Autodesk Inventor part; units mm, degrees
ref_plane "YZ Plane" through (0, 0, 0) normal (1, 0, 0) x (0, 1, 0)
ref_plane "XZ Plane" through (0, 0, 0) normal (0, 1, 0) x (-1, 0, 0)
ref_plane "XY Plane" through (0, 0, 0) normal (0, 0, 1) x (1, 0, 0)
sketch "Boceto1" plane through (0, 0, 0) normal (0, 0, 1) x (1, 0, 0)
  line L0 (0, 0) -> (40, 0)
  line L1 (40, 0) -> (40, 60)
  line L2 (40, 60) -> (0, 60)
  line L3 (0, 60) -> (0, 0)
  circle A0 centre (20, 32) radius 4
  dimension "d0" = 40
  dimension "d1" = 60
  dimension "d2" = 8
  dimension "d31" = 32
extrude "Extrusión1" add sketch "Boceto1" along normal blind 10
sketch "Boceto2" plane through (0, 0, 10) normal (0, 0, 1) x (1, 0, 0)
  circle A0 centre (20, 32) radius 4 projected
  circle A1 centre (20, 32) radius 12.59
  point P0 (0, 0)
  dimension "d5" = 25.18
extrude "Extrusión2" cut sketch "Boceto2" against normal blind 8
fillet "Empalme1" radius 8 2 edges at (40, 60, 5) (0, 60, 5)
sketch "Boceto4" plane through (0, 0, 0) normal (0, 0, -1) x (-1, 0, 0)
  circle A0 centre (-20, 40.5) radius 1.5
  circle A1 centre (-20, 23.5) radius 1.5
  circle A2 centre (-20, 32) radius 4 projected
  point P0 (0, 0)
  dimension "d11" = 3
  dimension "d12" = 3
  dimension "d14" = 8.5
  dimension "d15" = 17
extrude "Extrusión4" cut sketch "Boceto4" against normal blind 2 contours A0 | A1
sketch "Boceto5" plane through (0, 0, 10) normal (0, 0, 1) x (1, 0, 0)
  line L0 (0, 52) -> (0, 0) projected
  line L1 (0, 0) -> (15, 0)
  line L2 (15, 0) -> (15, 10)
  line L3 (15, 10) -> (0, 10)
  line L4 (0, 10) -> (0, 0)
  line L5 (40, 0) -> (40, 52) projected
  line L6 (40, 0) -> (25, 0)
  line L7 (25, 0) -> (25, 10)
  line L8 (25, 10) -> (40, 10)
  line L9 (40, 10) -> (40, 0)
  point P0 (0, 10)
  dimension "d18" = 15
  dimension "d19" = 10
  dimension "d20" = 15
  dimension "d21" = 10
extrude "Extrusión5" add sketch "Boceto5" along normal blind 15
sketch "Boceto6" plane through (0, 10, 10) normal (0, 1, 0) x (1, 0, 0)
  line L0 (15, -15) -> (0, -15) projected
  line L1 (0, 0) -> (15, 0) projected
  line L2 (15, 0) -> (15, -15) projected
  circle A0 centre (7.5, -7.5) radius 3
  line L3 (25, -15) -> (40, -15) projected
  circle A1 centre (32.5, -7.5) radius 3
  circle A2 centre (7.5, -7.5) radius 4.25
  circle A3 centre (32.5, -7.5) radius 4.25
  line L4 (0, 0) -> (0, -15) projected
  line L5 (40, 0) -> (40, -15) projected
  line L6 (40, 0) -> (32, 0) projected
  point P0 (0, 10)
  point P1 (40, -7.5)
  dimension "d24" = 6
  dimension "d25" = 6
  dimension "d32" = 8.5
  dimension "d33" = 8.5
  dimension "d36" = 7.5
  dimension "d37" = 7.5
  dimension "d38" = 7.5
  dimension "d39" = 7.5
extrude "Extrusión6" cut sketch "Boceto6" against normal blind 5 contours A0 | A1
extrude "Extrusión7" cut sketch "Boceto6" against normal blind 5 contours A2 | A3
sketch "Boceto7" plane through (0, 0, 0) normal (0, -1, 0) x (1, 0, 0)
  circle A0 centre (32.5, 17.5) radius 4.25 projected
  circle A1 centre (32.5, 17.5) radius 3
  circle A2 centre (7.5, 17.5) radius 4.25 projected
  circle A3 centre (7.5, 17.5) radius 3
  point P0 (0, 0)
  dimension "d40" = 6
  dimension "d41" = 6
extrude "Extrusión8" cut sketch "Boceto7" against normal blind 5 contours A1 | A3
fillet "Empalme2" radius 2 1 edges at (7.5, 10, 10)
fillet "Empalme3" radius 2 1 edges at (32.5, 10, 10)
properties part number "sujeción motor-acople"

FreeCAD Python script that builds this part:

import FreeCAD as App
import Part
import Sketcher
Q = App.Units.Quantity


def edges_at(feature, points):
    """Names of the edges that pass closest to the given points."""
    edges = feature.Shape.Edges
    near = lambda p: min(range(len(edges)), key=lambda i: edges[i].distToShape(Part.Vertex(*p))[0])
    return sorted({f"Edge{near(p) + 1}" for p in points})


def add_polygon(sketch, points):
    """Adds a closed chain of lines whose ends are joined by coincident constraints."""
    first, n = sketch.GeometryCount, len(points)
    for a, b in zip(points, points[1:] + points[:1]):
        sketch.addGeometry(Part.LineSegment(App.Vector(*a, 0), App.Vector(*b, 0)), False)
    for i in range(n):
        sketch.addConstraint(Sketcher.Constraint("Coincident", first + i, 2, first + (i + 1) % n, 1))

doc = App.newDocument("Part")
body = doc.addObject("PartDesign::Body", "Body")

sketch1 = doc.addObject("Sketcher::SketchObject", "Sketch")
body.addObject(sketch1)
sketch1.AttachmentSupport = (doc.XY_Plane, [""])
sketch1.MapMode = "FlatFace"
add_polygon(sketch1, [(0, 60), (0, 0), (40, 0), (40, 60)])
sketch1.addGeometry(Part.Circle(App.Vector(20, 32, 0), App.Vector(0, 0, 1), 4), False)
sketch1.addConstraint(Sketcher.Constraint("Vertical", 0))
sketch1.addConstraint(Sketcher.Constraint("Horizontal", 1))
sketch1.addConstraint(Sketcher.Constraint("Vertical", 2))
sketch1.addConstraint(Sketcher.Constraint("Horizontal", 3))
sketch1.addConstraint(Sketcher.Constraint("Coincident", 0, 2, -1, 1))
sketch1.addConstraint(Sketcher.Constraint("Diameter", 4, Q("8 mm")))
sketch1.addConstraint(Sketcher.Constraint("DistanceX", 1, 1, 1, 2, Q("40 mm")))
sketch1.addConstraint(Sketcher.Constraint("DistanceY", 0, 2, 0, 1, Q("60 mm")))
sketch1.addConstraint(Sketcher.Constraint("DistanceY", -1, 1, 4, 3, Q("32 mm")))
sketch1.addConstraint(Sketcher.Constraint("DistanceX", -1, 1, 4, 3, Q("20 mm")))
pad1 = doc.addObject("PartDesign::Pad", "Pad")
body.addObject(pad1)
pad1.Profile = sketch1
pad1.Length = 10

sketch2 = doc.addObject("Sketcher::SketchObject", "Sketch001")
body.addObject(sketch2)
sketch2.AttachmentSupport = (doc.XY_Plane, [""])
sketch2.MapMode = "FlatFace"
sketch2.AttachmentOffset = App.Placement(App.Vector(0, 0, 10), App.Rotation())
sketch2.addGeometry(Part.Circle(App.Vector(20, 32, 0), App.Vector(0, 0, 1), 12.59), False)
sketch2.addGeometry(Part.Circle(App.Vector(20, 32, 0), App.Vector(0, 0, 1), 4), False)
sketch2.addConstraint(Sketcher.Constraint("Coincident", 1, 3, 0, 3))
sketch2.addConstraint(Sketcher.Constraint("Diameter", 0, Q("25.18 mm")))
sketch2.addConstraint(Sketcher.Constraint("Diameter", 1, Q("8 mm")))
sketch2.addConstraint(Sketcher.Constraint("DistanceX", -1, 1, 0, 3, Q("20 mm")))
sketch2.addConstraint(Sketcher.Constraint("DistanceY", -1, 1, 0, 3, Q("32 mm")))
pocket1 = doc.addObject("PartDesign::Pocket", "Pocket")
body.addObject(pocket1)
pocket1.Profile = sketch2
pocket1.Length = 8
doc.recompute()

fillet = doc.addObject("PartDesign::Fillet", "Fillet")
body.addObject(fillet)
fillet.Base = (pocket1, edges_at(pocket1, [(40, 60, 5), (0, 60, 5)]))
fillet.Radius = 8

sketch3 = doc.addObject("Sketcher::SketchObject", "Sketch002")
body.addObject(sketch3)
sketch3.AttachmentSupport = (doc.XY_Plane, [""])
sketch3.MapMode = "FlatFace"
sketch3.addGeometry(Part.Circle(App.Vector(20, 40.5, 0), App.Vector(0, 0, 1), 1.5), False)
sketch3.addGeometry(Part.Circle(App.Vector(20, 23.5, 0), App.Vector(0, 0, 1), 1.5), False)
sketch3.addConstraint(Sketcher.Constraint("Equal", 0, 1))
sketch3.addConstraint(Sketcher.Constraint("Vertical", 0, 3, 1, 3))
sketch3.addConstraint(Sketcher.Constraint("Diameter", 0, Q("3 mm")))
sketch3.addConstraint(Sketcher.Constraint("DistanceY", 1, 3, 0, 3, Q("17 mm")))
sketch3.addConstraint(Sketcher.Constraint("DistanceX", -1, 1, 0, 3, Q("20 mm")))
sketch3.addConstraint(Sketcher.Constraint("DistanceY", -1, 1, 0, 3, Q("40.5 mm")))
pocket2 = doc.addObject("PartDesign::Pocket", "Pocket001")
body.addObject(pocket2)
pocket2.Profile = sketch3
pocket2.Length = 2
pocket2.Reversed = True

sketch4 = doc.addObject("Sketcher::SketchObject", "Sketch003")
body.addObject(sketch4)
sketch4.AttachmentSupport = (doc.XY_Plane, [""])
sketch4.MapMode = "FlatFace"
sketch4.AttachmentOffset = App.Placement(App.Vector(0, 0, 10), App.Rotation())
add_polygon(sketch4, [(15, 10), (0, 10), (0, 0), (15, 0)])
add_polygon(sketch4, [(25, 0), (40, 0), (40, 10), (25, 10)])
sketch4.addConstraint(Sketcher.Constraint("Horizontal", 0))
sketch4.addConstraint(Sketcher.Constraint("Vertical", 1))
sketch4.addConstraint(Sketcher.Constraint("Horizontal", 2))
sketch4.addConstraint(Sketcher.Constraint("Vertical", 3))
sketch4.addConstraint(Sketcher.Constraint("Horizontal", 4))
sketch4.addConstraint(Sketcher.Constraint("Vertical", 5))
sketch4.addConstraint(Sketcher.Constraint("Horizontal", 6))
sketch4.addConstraint(Sketcher.Constraint("Vertical", 7))
sketch4.addConstraint(Sketcher.Constraint("Coincident", 1, 2, -1, 1))
sketch4.addConstraint(Sketcher.Constraint("PointOnObject", 4, 2, -1))
sketch4.addConstraint(Sketcher.Constraint("Horizontal", 3, 2, 5, 2))
sketch4.addConstraint(Sketcher.Constraint("Equal", 2, 4))
sketch4.addConstraint(Sketcher.Constraint("DistanceX", 0, 2, 0, 1, Q("15 mm")))
sketch4.addConstraint(Sketcher.Constraint("DistanceY", 1, 2, 1, 1, Q("10 mm")))
sketch4.addConstraint(Sketcher.Constraint("DistanceX", 3, 2, 6, 2, Q("10 mm")))
pad2 = doc.addObject("PartDesign::Pad", "Pad001")
body.addObject(pad2)
pad2.Profile = sketch4
pad2.Length = 15

sketch5 = doc.addObject("Sketcher::SketchObject", "Sketch004")
body.addObject(sketch5)
sketch5.AttachmentSupport = (doc.XZ_Plane, [""])
sketch5.MapMode = "FlatFace"
sketch5.AttachmentOffset = App.Placement(App.Vector(0, 0, -10), App.Rotation())
sketch5.addGeometry(Part.Circle(App.Vector(7.5, 17.5, 0), App.Vector(0, 0, 1), 3), False)
sketch5.addGeometry(Part.Circle(App.Vector(32.5, 17.5, 0), App.Vector(0, 0, 1), 3), False)
sketch5.addConstraint(Sketcher.Constraint("Equal", 0, 1))
sketch5.addConstraint(Sketcher.Constraint("Horizontal", 0, 3, 1, 3))
sketch5.addConstraint(Sketcher.Constraint("Diameter", 0, Q("6 mm")))
sketch5.addConstraint(Sketcher.Constraint("DistanceX", -1, 1, 0, 3, Q("7.5 mm")))
sketch5.addConstraint(Sketcher.Constraint("DistanceX", 0, 3, 1, 3, Q("25 mm")))
sketch5.addConstraint(Sketcher.Constraint("DistanceY", -1, 1, 0, 3, Q("17.5 mm")))
pocket3 = doc.addObject("PartDesign::Pocket", "Pocket002")
body.addObject(pocket3)
pocket3.Profile = sketch5
pocket3.Length = 5
pocket3.Reversed = True

sketch6 = doc.addObject("Sketcher::SketchObject", "Sketch005")
body.addObject(sketch6)
sketch6.AttachmentSupport = (doc.XZ_Plane, [""])
sketch6.MapMode = "FlatFace"
sketch6.AttachmentOffset = App.Placement(App.Vector(0, 0, -10), App.Rotation())
sketch6.addGeometry(Part.Circle(App.Vector(7.5, 17.5, 0), App.Vector(0, 0, 1), 4.25), False)
sketch6.addGeometry(Part.Circle(App.Vector(7.5, 17.5, 0), App.Vector(0, 0, 1), 3), False)
sketch6.addGeometry(Part.Circle(App.Vector(32.5, 17.5, 0), App.Vector(0, 0, 1), 4.25), False)
sketch6.addGeometry(Part.Circle(App.Vector(32.5, 17.5, 0), App.Vector(0, 0, 1), 3), False)
sketch6.addConstraint(Sketcher.Constraint("Coincident", 1, 3, 0, 3))
sketch6.addConstraint(Sketcher.Constraint("Coincident", 3, 3, 2, 3))
sketch6.addConstraint(Sketcher.Constraint("Equal", 0, 2))
sketch6.addConstraint(Sketcher.Constraint("Equal", 1, 3))
sketch6.addConstraint(Sketcher.Constraint("Horizontal", 1, 3, 2, 3))
sketch6.addConstraint(Sketcher.Constraint("Diameter", 1, Q("6 mm")))
sketch6.addConstraint(Sketcher.Constraint("Diameter", 0, Q("8.5 mm")))
sketch6.addConstraint(Sketcher.Constraint("DistanceX", -1, 1, 0, 3, Q("7.5 mm")))
sketch6.addConstraint(Sketcher.Constraint("DistanceX", 0, 3, 2, 3, Q("25 mm")))
sketch6.addConstraint(Sketcher.Constraint("DistanceY", -1, 1, 0, 3, Q("17.5 mm")))
pocket4 = doc.addObject("PartDesign::Pocket", "Pocket003")
body.addObject(pocket4)
pocket4.Profile = sketch6
pocket4.Length = 5
pocket4.Reversed = True

sketch7 = doc.addObject("Sketcher::SketchObject", "Sketch006")
body.addObject(sketch7)
sketch7.AttachmentSupport = (doc.XZ_Plane, [""])
sketch7.MapMode = "FlatFace"
sketch7.addGeometry(Part.Circle(App.Vector(32.5, 17.5, 0), App.Vector(0, 0, 1), 3), False)
sketch7.addGeometry(Part.Circle(App.Vector(7.5, 17.5, 0), App.Vector(0, 0, 1), 3), False)
sketch7.addConstraint(Sketcher.Constraint("Equal", 0, 1))
sketch7.addConstraint(Sketcher.Constraint("Horizontal", 0, 3, 1, 3))
sketch7.addConstraint(Sketcher.Constraint("Diameter", 0, Q("6 mm")))
sketch7.addConstraint(Sketcher.Constraint("DistanceX", 1, 3, 0, 3, Q("25 mm")))
sketch7.addConstraint(Sketcher.Constraint("DistanceX", -1, 1, 0, 3, Q("32.5 mm")))
sketch7.addConstraint(Sketcher.Constraint("DistanceY", -1, 1, 0, 3, Q("17.5 mm")))
pocket5 = doc.addObject("PartDesign::Pocket", "Pocket004")
body.addObject(pocket5)
pocket5.Profile = sketch7
pocket5.Length = 5
doc.recompute()

fillet2 = doc.addObject("PartDesign::Fillet", "Fillet001")
body.addObject(fillet2)
fillet2.Base = (pocket5, edges_at(pocket5, [(7.5, 10, 10)]))
fillet2.Radius = 2
doc.recompute()

fillet3 = doc.addObject("PartDesign::Fillet", "Fillet002")
body.addObject(fillet3)
fillet3.Base = (fillet2, edges_at(fillet2, [(32.5, 10, 10)]))
fillet3.Radius = 2

doc.recompute()
